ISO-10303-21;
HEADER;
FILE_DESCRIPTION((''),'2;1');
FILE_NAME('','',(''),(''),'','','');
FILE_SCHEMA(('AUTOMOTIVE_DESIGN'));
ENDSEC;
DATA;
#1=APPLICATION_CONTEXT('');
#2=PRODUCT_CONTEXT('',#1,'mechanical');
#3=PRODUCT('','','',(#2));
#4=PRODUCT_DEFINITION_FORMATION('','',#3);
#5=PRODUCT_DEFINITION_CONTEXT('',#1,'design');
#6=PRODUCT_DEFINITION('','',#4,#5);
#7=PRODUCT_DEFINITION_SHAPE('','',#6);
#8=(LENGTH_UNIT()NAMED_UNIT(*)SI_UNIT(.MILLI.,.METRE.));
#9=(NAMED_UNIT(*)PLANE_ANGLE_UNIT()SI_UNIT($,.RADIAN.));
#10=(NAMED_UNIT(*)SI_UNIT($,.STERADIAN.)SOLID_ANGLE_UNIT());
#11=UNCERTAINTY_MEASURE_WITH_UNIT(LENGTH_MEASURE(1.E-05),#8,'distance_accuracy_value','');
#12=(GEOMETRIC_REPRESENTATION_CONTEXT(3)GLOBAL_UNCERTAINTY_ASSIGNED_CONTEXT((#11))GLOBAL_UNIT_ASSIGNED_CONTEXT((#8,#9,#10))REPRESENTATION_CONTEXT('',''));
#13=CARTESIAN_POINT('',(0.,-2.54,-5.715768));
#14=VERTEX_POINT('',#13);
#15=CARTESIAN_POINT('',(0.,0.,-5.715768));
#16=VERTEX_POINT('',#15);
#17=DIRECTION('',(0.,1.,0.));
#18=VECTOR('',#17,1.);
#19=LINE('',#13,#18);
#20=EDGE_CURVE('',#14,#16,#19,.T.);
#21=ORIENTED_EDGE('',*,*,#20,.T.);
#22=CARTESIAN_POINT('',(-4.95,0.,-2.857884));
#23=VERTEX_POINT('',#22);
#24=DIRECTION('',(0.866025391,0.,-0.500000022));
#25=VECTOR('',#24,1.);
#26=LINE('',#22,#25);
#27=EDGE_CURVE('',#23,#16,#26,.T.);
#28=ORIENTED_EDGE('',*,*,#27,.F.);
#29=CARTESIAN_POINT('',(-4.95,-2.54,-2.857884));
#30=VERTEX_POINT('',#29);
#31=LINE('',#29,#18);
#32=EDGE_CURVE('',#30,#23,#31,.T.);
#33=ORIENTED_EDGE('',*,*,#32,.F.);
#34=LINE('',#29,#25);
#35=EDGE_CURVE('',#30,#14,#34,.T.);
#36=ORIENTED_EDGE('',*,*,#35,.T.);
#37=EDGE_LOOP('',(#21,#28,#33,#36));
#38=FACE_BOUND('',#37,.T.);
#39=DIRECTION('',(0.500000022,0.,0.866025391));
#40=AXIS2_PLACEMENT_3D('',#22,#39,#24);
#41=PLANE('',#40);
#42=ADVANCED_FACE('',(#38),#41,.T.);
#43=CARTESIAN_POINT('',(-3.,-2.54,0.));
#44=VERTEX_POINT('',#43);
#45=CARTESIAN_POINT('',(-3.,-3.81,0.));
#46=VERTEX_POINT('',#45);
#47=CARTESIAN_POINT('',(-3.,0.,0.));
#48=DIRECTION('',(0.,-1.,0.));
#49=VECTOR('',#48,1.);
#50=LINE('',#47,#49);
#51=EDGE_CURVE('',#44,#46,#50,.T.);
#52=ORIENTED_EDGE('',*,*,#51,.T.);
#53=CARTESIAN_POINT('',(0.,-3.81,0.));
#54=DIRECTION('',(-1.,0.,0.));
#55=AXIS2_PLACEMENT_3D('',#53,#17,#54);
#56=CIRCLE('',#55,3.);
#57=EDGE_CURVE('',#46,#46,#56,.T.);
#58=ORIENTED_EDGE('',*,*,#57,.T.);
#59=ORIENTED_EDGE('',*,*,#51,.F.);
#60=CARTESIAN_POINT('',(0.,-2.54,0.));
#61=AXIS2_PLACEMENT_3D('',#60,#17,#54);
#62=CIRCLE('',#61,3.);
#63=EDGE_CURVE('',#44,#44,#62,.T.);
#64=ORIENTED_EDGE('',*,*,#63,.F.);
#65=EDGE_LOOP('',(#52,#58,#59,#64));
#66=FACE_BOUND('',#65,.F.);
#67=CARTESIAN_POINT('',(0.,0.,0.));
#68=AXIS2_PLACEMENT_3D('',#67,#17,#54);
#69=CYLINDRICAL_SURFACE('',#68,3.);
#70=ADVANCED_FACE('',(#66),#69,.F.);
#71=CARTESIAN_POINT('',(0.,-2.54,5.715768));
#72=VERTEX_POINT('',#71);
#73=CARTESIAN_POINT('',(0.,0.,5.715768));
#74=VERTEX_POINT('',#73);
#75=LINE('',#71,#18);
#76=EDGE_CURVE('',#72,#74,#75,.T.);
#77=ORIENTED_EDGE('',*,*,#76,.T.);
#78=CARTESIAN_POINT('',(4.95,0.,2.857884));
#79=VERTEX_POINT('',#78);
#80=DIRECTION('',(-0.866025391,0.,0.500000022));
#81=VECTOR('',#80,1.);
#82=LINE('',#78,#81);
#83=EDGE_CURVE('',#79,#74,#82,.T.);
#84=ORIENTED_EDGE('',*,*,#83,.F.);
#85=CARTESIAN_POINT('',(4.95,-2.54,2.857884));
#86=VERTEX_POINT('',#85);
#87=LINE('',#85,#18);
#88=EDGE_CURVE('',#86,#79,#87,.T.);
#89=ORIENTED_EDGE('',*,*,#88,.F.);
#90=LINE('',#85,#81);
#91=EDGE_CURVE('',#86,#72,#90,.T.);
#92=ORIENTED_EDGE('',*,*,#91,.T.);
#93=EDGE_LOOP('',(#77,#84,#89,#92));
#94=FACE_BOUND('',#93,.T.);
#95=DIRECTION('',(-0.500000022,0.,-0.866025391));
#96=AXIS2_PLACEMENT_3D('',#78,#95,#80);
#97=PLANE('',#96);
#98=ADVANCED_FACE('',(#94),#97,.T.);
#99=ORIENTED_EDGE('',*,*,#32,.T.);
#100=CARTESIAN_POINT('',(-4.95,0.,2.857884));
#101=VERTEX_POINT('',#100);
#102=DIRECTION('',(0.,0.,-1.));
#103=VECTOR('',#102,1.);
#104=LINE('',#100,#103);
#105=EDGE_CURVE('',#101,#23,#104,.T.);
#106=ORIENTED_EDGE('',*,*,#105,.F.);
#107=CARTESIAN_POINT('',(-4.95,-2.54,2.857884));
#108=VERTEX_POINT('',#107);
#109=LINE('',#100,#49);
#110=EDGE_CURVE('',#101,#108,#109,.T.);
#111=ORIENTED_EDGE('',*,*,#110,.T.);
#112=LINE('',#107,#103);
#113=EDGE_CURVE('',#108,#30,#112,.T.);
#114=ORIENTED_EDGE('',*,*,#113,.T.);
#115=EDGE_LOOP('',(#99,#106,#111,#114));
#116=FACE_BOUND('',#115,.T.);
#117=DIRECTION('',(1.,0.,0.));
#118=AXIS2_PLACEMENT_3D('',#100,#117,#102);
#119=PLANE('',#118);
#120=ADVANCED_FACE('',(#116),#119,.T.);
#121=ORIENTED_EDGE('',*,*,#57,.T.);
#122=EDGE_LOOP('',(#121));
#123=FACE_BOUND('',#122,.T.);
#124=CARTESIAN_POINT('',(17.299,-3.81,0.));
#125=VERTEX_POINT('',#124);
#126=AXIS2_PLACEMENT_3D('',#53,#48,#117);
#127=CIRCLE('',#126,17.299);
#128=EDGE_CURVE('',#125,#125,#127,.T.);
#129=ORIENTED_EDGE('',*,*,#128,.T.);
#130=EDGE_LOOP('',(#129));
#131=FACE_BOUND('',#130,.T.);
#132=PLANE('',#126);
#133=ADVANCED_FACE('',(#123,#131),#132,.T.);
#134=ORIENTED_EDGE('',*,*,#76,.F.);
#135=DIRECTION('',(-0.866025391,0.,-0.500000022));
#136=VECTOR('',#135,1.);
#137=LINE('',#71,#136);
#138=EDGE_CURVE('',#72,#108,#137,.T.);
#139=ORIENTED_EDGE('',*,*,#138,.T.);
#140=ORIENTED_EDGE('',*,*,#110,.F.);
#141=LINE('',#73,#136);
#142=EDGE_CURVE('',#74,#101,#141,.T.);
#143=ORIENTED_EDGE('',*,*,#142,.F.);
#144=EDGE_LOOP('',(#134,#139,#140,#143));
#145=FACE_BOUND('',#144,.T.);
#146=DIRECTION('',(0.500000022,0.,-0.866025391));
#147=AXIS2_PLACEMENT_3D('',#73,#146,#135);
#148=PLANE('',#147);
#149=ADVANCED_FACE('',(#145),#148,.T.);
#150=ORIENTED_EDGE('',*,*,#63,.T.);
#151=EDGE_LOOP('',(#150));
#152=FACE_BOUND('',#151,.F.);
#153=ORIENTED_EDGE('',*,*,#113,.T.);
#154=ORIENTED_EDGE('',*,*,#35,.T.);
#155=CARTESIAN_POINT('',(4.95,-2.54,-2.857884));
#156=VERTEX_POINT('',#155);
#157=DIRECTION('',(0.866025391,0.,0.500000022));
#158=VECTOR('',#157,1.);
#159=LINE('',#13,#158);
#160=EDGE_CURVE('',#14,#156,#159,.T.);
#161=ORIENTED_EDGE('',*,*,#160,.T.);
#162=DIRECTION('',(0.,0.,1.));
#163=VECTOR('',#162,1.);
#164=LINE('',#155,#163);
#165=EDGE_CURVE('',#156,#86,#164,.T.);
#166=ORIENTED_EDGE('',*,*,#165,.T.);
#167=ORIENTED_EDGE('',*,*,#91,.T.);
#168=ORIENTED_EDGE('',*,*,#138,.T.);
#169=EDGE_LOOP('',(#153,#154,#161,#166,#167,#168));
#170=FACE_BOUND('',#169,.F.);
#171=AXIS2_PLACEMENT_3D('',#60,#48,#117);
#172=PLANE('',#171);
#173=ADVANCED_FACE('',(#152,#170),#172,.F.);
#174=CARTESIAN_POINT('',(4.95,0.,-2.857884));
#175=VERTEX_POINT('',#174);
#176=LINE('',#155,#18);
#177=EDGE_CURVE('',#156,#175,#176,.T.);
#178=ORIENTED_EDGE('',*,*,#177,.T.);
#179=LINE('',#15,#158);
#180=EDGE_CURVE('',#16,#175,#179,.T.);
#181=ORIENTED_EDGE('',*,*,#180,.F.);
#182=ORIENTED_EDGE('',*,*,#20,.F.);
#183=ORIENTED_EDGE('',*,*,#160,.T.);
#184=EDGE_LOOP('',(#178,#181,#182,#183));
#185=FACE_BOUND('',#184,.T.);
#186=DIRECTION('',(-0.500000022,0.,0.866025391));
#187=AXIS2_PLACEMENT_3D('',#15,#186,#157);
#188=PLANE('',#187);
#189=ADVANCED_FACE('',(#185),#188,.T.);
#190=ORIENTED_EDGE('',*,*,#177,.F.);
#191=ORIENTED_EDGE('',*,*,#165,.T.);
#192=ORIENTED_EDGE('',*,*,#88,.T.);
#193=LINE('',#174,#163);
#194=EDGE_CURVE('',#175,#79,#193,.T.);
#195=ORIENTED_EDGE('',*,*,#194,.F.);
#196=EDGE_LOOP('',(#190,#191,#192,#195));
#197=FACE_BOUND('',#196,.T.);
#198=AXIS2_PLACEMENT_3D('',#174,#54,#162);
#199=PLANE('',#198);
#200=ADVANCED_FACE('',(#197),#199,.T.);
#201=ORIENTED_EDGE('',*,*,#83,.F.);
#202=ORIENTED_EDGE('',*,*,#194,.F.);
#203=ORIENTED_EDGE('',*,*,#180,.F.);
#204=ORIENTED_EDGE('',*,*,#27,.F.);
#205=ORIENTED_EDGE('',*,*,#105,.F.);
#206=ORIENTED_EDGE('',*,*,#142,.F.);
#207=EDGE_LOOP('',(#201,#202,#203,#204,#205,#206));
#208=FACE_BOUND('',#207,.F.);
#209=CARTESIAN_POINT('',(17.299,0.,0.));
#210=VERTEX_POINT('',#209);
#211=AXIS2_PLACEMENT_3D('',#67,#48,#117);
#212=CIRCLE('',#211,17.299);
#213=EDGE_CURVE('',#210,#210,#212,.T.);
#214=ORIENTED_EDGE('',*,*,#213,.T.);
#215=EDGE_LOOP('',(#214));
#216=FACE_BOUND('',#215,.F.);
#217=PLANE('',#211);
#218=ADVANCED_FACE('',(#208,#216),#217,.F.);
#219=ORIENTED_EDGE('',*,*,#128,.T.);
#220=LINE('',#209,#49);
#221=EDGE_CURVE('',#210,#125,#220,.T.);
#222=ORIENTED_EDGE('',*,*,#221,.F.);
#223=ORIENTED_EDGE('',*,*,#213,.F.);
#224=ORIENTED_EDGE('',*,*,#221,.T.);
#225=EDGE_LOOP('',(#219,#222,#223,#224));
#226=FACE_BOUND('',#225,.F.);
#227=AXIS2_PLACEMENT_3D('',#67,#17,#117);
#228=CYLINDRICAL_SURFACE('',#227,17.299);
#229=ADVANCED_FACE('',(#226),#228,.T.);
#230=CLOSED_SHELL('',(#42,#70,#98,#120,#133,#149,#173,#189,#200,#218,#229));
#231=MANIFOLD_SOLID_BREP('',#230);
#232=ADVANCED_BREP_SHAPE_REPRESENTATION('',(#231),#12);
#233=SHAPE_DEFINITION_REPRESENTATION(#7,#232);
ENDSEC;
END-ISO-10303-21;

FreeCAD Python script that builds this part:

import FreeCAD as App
import Part
import Sketcher

V = App.Vector
Q = App.Units.Quantity

doc = App.newDocument("Part")
params = doc.addObject("Spreadsheet::Sheet", "Params")
for row, (alias, value) in enumerate([
    ("pad1_length", "0.15 in"),
    ("pocket1_length", "0.05 in"),
    ("pocket2_length", "0.1 in"),
], start=1):
    params.set(f"A{row}", alias)
    params.set(f"B{row}", "=" + value)
    params.setAlias(f"B{row}", alias)

body = doc.addObject("PartDesign::Body", "Body")

# Sketch on XZ plane
sketch1 = doc.addObject("Sketcher::SketchObject", "Sketch")
body.addObject(sketch1)
sketch1.AttachmentSupport = (doc.XZ_Plane, [""])
sketch1.MapMode = "FlatFace"
sketch1.addGeometry(Part.Circle(V(0, 0, 0), V(0, 0, 1), 17.299), False)
sketch1.addConstraint(Sketcher.Constraint("Coincident", 0, 3, -1, 1))
sketch1.addConstraint(Sketcher.Constraint("Diameter", 0, Q("34.598 mm")))
pad1 = doc.addObject("PartDesign::Pad", "Pad")
body.addObject(pad1)
pad1.Profile = sketch1
pad1.setExpression("Length", "Params.pad1_length")

# Sketch on XZ plane
sketch2 = doc.addObject("Sketcher::SketchObject", "Sketch001")
body.addObject(sketch2)
sketch2.AttachmentSupport = (doc.XZ_Plane, [""])
sketch2.MapMode = "FlatFace"
sketch2.addGeometry(Part.LineSegment(V(-4.95, 2.857884, 0), V(-4.95, -2.857884, 0)), False)
sketch2.addGeometry(Part.LineSegment(V(-4.95, -2.857884, 0), V(0, -5.715768, 0)), False)
sketch2.addGeometry(Part.LineSegment(V(0, -5.715768, 0), V(4.95, -2.857884, 0)), False)
sketch2.addGeometry(Part.LineSegment(V(4.95, -2.857884, 0), V(4.95, 2.857884, 0)), False)
sketch2.addGeometry(Part.LineSegment(V(4.95, 2.857884, 0), V(0, 5.715768, 0)), False)
sketch2.addGeometry(Part.LineSegment(V(0, 5.715768, 0), V(-4.95, 2.857884, 0)), False)
sketch2.addConstraint(Sketcher.Constraint("Coincident", 0, 2, 1, 1))
sketch2.addConstraint(Sketcher.Constraint("Coincident", 1, 2, 2, 1))
sketch2.addConstraint(Sketcher.Constraint("Coincident", 2, 2, 3, 1))
sketch2.addConstraint(Sketcher.Constraint("Coincident", 3, 2, 4, 1))
sketch2.addConstraint(Sketcher.Constraint("Coincident", 4, 2, 5, 1))
sketch2.addConstraint(Sketcher.Constraint("Coincident", 5, 2, 0, 1))
sketch2.addConstraint(Sketcher.Constraint("Vertical", 0))
sketch2.addConstraint(Sketcher.Constraint("Vertical", 3))
sketch2.addConstraint(Sketcher.Constraint("Symmetric", 0, 2, 3, 2, -1, 1))
sketch2.addConstraint(Sketcher.Constraint("Symmetric", 1, 2, 4, 2, -1, 1))
sketch2.addConstraint(Sketcher.Constraint("PointOnObject", 1, 2, -2))
sketch2.addConstraint(Sketcher.Constraint("Parallel", 2, 5))
sketch2.addConstraint(Sketcher.Constraint("Horizontal", 0, 2, 2, 2))
sketch2.addConstraint(Sketcher.Constraint("Angle", 1, Q("-30.000001 deg")))
sketch2.addConstraint(Sketcher.Constraint("DistanceX", 0, 2, -1, 1, Q("4.95 mm")))
sketch2.addConstraint(Sketcher.Constraint("DistanceY", 0, 2, 0, 1, Q("5.715768 mm")))
pocket1 = doc.addObject("PartDesign::Pocket", "Pocket")
body.addObject(pocket1)
pocket1.Profile = sketch2
pocket1.setExpression("Length", "Params.pocket1_length")
pocket1.Reversed = True

# Sketch on XZ plane
sketch3 = doc.addObject("Sketcher::SketchObject", "Sketch002")
body.addObject(sketch3)
sketch3.AttachmentSupport = (doc.XZ_Plane, [""])
sketch3.MapMode = "FlatFace"
sketch3.addGeometry(Part.LineSegment(V(-4.95, 2.857884, 0), V(-4.95, -2.857884, 0)), False)
sketch3.addGeometry(Part.LineSegment(V(-4.95, -2.857884, 0), V(0, -5.715768, 0)), False)
sketch3.addGeometry(Part.LineSegment(V(0, -5.715768, 0), V(4.95, -2.857884, 0)), False)
sketch3.addGeometry(Part.LineSegment(V(4.95, -2.857884, 0), V(4.95, 2.857884, 0)), False)
sketch3.addGeometry(Part.LineSegment(V(4.95, 2.857884, 0), V(0, 5.715768, 0)), False)
sketch3.addGeometry(Part.LineSegment(V(0, 5.715768, 0), V(-4.95, 2.857884, 0)), False)
sketch3.addConstraint(Sketcher.Constraint("Coincident", 0, 2, 1, 1))
sketch3.addConstraint(Sketcher.Constraint("Coincident", 1, 2, 2, 1))
sketch3.addConstraint(Sketcher.Constraint("Coincident", 2, 2, 3, 1))
sketch3.addConstraint(Sketcher.Constraint("Coincident", 3, 2, 4, 1))
sketch3.addConstraint(Sketcher.Constraint("Coincident", 4, 2, 5, 1))
sketch3.addConstraint(Sketcher.Constraint("Coincident", 5, 2, 0, 1))
sketch3.addConstraint(Sketcher.Constraint("Vertical", 0))
sketch3.addConstraint(Sketcher.Constraint("Vertical", 3))
sketch3.addConstraint(Sketcher.Constraint("Symmetric", 0, 2, 3, 2, -1, 1))
sketch3.addConstraint(Sketcher.Constraint("Symmetric", 1, 2, 4, 2, -1, 1))
sketch3.addConstraint(Sketcher.Constraint("PointOnObject", 1, 2, -2))
sketch3.addConstraint(Sketcher.Constraint("Parallel", 2, 5))
sketch3.addConstraint(Sketcher.Constraint("Horizontal", 0, 2, 2, 2))
sketch3.addConstraint(Sketcher.Constraint("Angle", 1, Q("-30.000001 deg")))
sketch3.addConstraint(Sketcher.Constraint("DistanceX", 0, 2, -1, 1, Q("4.95 mm")))
sketch3.addConstraint(Sketcher.Constraint("DistanceY", 0, 2, 0, 1, Q("5.715768 mm")))
pocket2 = doc.addObject("PartDesign::Pocket", "Pocket001")
body.addObject(pocket2)
pocket2.Profile = sketch3
pocket2.setExpression("Length", "Params.pocket2_length")
pocket2.Reversed = True

# Sketch on XZ plane
sketch4 = doc.addObject("Sketcher::SketchObject", "Sketch003")
body.addObject(sketch4)
sketch4.AttachmentSupport = (doc.XZ_Plane, [""])
sketch4.MapMode = "FlatFace"
sketch4.addGeometry(Part.Circle(V(0, 0, 0), V(0, 0, 1), 3), False)
sketch4.addConstraint(Sketcher.Constraint("Coincident", 0, 3, -1, 1))
sketch4.addConstraint(Sketcher.Constraint("Diameter", 0, Q("6 mm")))
pocket3 = doc.addObject("PartDesign::Pocket", "Pocket002")
body.addObject(pocket3)
pocket3.Profile = sketch4
pocket3.Type = "ThroughAll"
pocket3.Reversed = True

doc.recompute()
